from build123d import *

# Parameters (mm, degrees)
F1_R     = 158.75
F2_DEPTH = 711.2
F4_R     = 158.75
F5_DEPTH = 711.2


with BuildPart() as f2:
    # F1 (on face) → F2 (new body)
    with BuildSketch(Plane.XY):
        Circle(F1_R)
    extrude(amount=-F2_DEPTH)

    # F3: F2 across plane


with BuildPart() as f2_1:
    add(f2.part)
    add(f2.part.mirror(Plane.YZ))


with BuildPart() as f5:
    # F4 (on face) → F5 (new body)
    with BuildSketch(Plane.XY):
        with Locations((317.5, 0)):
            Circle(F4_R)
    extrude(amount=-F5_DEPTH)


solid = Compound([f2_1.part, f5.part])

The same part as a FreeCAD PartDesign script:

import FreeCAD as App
import Part
import Sketcher

V = App.Vector
Q = App.Units.Quantity

doc = App.newDocument("Part")
body = doc.addObject("PartDesign::Body", "Body")

sketch1 = body.newObject("Sketcher::SketchObject", "Sketch")
sketch1.AttachmentSupport = (doc.getObject("XY_Plane"), [""])
sketch1.MapMode = "FlatFace"
sketch1.addGeometry(Part.Circle(V(0, 0, 0), V(0, 0, 1), 159), False)
sketch1.addConstraint([
    Sketcher.Constraint("Coincident", 0, 3, -1, 1),
    Sketcher.Constraint("Diameter", 0, Q("12.5 in")),
])
pad1 = body.newObject("PartDesign::Pad", "Pad")
pad1.Profile = sketch1
pad1.Length = Q("28 in")
pad1.Reversed = True
body2 = doc.addObject("PartDesign::Body", "Body001")
doc.recompute()

body2.BaseFeature = body
doc.recompute()

mirroring = doc.addObject("Part::Mirroring", "Mirroring")
mirroring.Source = body
mirroring.Base = V(0, 0, 0)
mirroring.Normal = V(1, 0, 0)
body3 = doc.addObject("PartDesign::Body", "Body002")
body3.BaseFeature = mirroring
boolean = body2.newObject("PartDesign::Boolean", "Boolean")
boolean.Type = "Fuse"
boolean.addObjects([body3])
doc.recompute()
body4 = doc.addObject("PartDesign::Body", "Body003")

sketch2 = body4.newObject("Sketcher::SketchObject", "Sketch001")
sketch2.AttachmentSupport = (doc.getObject("XY_Plane003"), [""])
sketch2.MapMode = "FlatFace"
sketch2.addGeometry(Part.Circle(V(318, 0, 0), V(0, 0, 1), 159), False)
sketch2.addConstraint([
    Sketcher.Constraint("PointOnObject", 0, 3, -1),
    Sketcher.Constraint("Diameter", 0, Q("12.5 in")),
    Sketcher.Constraint("DistanceX", -1, 1, 0, 3, Q("12.5 in")),
])
pad2 = body4.newObject("PartDesign::Pad", "Pad001")
pad2.Profile = sketch2
pad2.Length = Q("28 in")
pad2.Reversed = True
mirroring.Visibility = False

doc.recompute()
